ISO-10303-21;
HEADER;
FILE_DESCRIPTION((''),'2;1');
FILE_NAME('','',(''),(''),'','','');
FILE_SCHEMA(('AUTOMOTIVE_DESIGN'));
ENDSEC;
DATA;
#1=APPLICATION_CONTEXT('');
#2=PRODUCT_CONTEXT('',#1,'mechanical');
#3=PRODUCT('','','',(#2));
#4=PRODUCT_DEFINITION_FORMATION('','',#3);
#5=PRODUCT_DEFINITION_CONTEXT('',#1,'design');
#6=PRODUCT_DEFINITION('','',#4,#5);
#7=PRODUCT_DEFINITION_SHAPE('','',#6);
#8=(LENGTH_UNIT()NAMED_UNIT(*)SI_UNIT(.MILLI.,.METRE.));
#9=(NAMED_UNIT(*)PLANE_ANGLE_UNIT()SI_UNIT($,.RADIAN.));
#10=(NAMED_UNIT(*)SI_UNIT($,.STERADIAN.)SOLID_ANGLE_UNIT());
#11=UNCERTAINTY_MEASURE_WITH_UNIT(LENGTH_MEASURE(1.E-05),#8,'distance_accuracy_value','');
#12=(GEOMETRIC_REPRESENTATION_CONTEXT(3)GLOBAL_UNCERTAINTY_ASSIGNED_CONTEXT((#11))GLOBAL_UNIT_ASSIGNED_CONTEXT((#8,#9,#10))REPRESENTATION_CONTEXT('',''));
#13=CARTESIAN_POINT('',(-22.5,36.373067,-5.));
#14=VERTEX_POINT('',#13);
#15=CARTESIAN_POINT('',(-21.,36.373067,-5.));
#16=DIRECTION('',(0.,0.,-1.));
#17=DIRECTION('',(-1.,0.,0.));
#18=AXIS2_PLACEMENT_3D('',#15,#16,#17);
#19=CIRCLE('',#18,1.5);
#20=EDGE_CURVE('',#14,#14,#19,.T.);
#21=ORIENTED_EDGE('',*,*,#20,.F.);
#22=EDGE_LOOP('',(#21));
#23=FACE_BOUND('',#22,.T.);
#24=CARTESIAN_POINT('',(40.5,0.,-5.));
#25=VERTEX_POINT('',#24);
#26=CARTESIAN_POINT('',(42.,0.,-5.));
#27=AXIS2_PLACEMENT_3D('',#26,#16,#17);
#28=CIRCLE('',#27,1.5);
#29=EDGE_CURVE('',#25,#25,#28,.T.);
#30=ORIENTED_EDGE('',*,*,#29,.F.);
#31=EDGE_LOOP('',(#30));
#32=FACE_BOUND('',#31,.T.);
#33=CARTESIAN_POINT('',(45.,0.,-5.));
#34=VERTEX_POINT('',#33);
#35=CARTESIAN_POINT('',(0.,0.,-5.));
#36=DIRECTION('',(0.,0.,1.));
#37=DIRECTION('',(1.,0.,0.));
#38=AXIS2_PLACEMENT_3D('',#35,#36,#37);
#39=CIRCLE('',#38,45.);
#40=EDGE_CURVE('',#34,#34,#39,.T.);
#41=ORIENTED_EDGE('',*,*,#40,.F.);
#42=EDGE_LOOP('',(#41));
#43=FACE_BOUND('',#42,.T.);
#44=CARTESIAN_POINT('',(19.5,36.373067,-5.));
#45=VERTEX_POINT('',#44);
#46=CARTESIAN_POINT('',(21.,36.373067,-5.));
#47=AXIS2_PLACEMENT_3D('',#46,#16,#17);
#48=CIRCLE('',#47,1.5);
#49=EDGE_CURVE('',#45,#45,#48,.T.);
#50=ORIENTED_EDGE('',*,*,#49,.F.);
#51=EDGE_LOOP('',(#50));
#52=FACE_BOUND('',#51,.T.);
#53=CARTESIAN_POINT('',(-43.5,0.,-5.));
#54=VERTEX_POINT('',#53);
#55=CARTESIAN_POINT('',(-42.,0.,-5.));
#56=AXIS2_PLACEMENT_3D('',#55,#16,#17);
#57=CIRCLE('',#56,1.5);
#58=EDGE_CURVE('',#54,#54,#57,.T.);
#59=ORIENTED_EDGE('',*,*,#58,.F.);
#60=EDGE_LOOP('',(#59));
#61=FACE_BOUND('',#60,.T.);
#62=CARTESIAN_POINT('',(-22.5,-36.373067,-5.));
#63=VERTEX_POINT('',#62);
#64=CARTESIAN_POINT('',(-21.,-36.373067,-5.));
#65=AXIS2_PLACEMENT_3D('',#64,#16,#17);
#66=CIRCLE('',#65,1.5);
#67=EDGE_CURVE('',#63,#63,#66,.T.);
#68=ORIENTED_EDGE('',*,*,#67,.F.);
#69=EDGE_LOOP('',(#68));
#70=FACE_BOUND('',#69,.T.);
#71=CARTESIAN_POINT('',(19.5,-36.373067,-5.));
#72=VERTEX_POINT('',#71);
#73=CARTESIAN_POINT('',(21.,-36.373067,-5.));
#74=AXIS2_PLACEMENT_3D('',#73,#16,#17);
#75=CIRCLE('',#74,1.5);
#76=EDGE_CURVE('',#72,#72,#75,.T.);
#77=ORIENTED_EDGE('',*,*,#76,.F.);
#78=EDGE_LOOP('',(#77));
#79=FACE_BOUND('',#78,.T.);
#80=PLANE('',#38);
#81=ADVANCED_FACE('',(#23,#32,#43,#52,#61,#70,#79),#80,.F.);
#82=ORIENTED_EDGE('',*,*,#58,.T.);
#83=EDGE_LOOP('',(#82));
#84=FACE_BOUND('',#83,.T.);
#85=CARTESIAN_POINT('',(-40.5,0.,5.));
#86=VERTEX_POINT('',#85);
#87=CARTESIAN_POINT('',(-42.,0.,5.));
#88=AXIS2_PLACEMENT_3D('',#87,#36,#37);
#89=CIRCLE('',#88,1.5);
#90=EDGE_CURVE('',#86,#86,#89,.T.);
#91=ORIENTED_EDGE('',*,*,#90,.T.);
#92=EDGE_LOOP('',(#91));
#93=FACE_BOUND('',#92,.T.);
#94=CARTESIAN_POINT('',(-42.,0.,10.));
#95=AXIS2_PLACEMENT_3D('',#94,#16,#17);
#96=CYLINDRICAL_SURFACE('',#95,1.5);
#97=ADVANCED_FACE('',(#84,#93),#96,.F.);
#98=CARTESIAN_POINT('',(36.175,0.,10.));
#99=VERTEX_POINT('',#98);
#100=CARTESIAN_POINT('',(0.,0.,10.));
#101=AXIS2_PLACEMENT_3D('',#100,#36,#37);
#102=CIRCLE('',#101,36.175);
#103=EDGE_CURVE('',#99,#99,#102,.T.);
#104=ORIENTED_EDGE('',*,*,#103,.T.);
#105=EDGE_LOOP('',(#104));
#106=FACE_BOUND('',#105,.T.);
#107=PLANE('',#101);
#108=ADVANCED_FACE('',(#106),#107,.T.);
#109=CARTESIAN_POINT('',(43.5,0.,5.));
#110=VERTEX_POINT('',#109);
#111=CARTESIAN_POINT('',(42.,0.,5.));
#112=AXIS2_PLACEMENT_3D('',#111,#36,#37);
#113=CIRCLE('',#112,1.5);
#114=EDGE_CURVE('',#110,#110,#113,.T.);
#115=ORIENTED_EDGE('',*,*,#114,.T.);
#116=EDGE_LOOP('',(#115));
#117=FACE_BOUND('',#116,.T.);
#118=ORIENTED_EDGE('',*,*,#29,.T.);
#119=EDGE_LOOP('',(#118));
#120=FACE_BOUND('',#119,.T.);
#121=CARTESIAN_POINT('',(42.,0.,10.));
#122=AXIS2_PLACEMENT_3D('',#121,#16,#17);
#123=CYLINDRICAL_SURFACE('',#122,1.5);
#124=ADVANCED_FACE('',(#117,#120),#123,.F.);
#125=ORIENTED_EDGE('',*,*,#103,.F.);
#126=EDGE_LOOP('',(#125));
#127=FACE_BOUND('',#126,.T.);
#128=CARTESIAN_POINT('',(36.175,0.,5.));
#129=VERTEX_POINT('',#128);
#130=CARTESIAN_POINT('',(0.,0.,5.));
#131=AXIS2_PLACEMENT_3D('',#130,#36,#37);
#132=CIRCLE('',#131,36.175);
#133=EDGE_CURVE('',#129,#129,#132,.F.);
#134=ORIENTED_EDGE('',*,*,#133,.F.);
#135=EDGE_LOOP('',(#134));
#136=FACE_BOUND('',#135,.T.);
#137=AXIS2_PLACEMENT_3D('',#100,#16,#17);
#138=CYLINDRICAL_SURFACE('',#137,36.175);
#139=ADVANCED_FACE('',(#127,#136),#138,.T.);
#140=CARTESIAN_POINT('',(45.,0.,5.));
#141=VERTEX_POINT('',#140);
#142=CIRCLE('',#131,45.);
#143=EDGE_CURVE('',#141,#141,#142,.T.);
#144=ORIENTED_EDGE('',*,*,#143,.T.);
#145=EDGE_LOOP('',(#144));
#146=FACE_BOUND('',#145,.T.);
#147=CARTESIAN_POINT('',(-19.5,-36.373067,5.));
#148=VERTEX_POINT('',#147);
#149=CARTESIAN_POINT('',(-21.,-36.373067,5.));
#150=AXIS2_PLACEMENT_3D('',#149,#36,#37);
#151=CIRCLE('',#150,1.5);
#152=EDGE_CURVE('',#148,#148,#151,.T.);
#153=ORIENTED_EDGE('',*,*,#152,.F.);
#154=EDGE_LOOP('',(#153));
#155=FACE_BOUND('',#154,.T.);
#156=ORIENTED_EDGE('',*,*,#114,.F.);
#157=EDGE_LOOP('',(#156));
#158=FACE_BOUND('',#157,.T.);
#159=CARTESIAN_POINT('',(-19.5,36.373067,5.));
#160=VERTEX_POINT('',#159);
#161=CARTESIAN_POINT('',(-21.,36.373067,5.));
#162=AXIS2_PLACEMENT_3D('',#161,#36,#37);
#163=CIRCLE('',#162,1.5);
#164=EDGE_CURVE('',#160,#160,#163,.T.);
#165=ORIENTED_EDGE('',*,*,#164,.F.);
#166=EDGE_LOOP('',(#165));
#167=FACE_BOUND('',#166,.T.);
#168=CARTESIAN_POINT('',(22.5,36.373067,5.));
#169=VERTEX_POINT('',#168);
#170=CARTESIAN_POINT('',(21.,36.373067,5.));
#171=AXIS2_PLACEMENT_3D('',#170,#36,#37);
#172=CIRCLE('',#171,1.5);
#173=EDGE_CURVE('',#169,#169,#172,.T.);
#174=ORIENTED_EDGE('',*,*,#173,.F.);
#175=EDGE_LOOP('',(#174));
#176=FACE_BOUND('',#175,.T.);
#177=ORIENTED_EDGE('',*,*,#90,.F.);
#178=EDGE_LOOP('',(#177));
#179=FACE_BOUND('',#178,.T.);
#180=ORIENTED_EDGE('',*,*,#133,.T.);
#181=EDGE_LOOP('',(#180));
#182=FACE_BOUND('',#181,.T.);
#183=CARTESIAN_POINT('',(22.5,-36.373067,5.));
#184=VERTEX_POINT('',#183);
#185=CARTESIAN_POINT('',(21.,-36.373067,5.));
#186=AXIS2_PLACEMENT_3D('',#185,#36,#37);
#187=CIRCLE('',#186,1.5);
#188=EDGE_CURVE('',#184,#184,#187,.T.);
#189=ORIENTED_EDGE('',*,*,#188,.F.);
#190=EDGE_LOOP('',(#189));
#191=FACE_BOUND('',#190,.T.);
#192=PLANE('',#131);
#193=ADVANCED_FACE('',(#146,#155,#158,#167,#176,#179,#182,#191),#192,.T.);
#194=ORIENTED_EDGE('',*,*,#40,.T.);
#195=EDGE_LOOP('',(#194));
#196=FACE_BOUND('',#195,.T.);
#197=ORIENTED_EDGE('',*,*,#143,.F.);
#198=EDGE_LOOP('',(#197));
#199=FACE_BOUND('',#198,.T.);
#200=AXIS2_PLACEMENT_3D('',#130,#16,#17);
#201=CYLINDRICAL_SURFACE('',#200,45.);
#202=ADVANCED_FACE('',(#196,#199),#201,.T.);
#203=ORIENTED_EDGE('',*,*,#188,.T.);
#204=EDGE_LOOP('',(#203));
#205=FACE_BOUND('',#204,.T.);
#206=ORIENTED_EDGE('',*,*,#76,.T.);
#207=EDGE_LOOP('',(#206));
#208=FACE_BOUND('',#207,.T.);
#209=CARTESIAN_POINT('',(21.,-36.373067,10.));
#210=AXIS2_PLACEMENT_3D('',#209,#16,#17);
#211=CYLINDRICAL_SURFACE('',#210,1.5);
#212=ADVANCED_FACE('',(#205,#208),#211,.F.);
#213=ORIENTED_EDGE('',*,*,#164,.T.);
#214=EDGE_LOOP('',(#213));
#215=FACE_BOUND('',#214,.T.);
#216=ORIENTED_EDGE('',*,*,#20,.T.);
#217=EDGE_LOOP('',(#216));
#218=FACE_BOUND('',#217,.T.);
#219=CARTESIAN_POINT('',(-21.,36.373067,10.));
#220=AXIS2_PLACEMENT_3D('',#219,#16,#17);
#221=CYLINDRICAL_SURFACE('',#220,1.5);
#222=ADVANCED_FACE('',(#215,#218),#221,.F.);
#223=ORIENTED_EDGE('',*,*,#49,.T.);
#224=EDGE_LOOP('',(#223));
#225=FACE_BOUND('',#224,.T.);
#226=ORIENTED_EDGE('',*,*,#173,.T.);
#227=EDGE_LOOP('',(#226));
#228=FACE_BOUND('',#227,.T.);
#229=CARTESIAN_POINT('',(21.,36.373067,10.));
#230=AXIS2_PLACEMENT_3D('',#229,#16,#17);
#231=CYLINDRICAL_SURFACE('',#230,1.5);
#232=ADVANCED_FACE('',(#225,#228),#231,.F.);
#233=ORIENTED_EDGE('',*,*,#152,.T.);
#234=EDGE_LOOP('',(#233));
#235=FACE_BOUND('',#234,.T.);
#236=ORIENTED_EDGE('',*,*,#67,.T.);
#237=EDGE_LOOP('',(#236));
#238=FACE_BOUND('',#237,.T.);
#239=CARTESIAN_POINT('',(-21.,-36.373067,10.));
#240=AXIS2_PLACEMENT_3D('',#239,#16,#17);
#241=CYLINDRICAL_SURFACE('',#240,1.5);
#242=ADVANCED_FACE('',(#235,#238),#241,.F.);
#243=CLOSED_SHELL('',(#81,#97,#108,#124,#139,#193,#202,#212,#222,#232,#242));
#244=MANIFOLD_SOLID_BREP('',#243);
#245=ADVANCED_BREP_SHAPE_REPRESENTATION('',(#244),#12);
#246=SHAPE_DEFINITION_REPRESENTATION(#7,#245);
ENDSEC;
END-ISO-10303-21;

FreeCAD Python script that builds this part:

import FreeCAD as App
import Part
import Sketcher

V = App.Vector

doc = App.newDocument("Part")
body = doc.addObject("PartDesign::Body", "Body")

sketch1 = doc.addObject("Sketcher::SketchObject", "Sketch")
body.addObject(sketch1)
sketch1.AttachmentSupport = (doc.XY_Plane, [""])
sketch1.MapMode = "FlatFace"
sketch1.addGeometry(Part.Circle(V(0, 0, 0), V(0, 0, 1), 45), False)
sketch1.addConstraint(Sketcher.Constraint("Coincident", 0, 3, -1, 1))
sketch1.addConstraint(Sketcher.Constraint("Diameter", 0, 90.0))
pad1 = doc.addObject("PartDesign::Pad", "Pad")
body.addObject(pad1)
pad1.Profile = sketch1
pad1.Length = 10
pad1.Midplane = True

sketch2 = doc.addObject("Sketcher::SketchObject", "Sketch001")
body.addObject(sketch2)
sketch2.AttachmentSupport = (doc.XY_Plane, [""])
sketch2.MapMode = "FlatFace"
sketch2.AttachmentOffset = App.Placement(V(0, 0, 5), App.Rotation())
sketch2.addGeometry(Part.Circle(V(0, 0, 0), V(0, 0, 1), 36), False)
sketch2.addConstraint(Sketcher.Constraint("Coincident", 0, 3, -1, 1))
sketch2.addConstraint(Sketcher.Constraint("Diameter", 0, 72.35))
pad2 = doc.addObject("PartDesign::Pad", "Pad001")
body.addObject(pad2)
pad2.Profile = sketch2
pad2.Length = 10
pad2.Midplane = True

sketch3 = doc.addObject("Sketcher::SketchObject", "Sketch002")
body.addObject(sketch3)
sketch3.AttachmentSupport = (doc.XY_Plane, [""])
sketch3.MapMode = "FlatFace"
sketch3.AttachmentOffset = App.Placement(V(0, 0, -5), App.Rotation())
sketch3.addGeometry(Part.Circle(V(42, 0, 0), V(0, 0, 1), 1.5), False)
sketch3.addGeometry(Part.Circle(V(21, 36.4, 0), V(0, 0, 1), 1.5), False)
sketch3.addGeometry(Part.Circle(V(-21, 36.4, 0), V(0, 0, 1), 1.5), False)
sketch3.addGeometry(Part.Circle(V(-42, 0, 0), V(0, 0, 1), 1.5), False)
sketch3.addGeometry(Part.Circle(V(-21, -36.4, 0), V(0, 0, 1), 1.5), False)
sketch3.addGeometry(Part.Circle(V(21, -36.4, 0), V(0, 0, 1), 1.5), False)
sketch3.addConstraint(Sketcher.Constraint("Equal", 0, 1))
sketch3.addConstraint(Sketcher.Constraint("Equal", 1, 2))
sketch3.addConstraint(Sketcher.Constraint("Equal", 2, 3))
sketch3.addConstraint(Sketcher.Constraint("Equal", 3, 4))
sketch3.addConstraint(Sketcher.Constraint("Equal", 4, 5))
sketch3.addConstraint(Sketcher.Constraint("Symmetric", 0, 3, 3, 3, -1, 1))
sketch3.addConstraint(Sketcher.Constraint("Symmetric", 1, 3, 4, 3, -1, 1))
sketch3.addConstraint(Sketcher.Constraint("Symmetric", 2, 3, 5, 3, -1, 1))
sketch3.addConstraint(Sketcher.Constraint("Symmetric", 1, 3, 2, 3, -2))
sketch3.addConstraint(Sketcher.Constraint("PointOnObject", 0, 3, -1))
sketch3.addConstraint(Sketcher.Constraint("Diameter", 0, 3.0))
sketch3.addConstraint(Sketcher.Constraint("DistanceX", -1, 1, 0, 3, 42.0))
sketch3.addConstraint(Sketcher.Constraint("DistanceX", -1, 1, 1, 3, 21.0))
sketch3.addConstraint(Sketcher.Constraint("DistanceY", -1, 1, 1, 3, 36.373067))
pocket1 = doc.addObject("PartDesign::Pocket", "Pocket")
body.addObject(pocket1)
pocket1.Profile = sketch3
pocket1.Type = "ThroughAll"
pocket1.Reversed = True

doc.recompute()
